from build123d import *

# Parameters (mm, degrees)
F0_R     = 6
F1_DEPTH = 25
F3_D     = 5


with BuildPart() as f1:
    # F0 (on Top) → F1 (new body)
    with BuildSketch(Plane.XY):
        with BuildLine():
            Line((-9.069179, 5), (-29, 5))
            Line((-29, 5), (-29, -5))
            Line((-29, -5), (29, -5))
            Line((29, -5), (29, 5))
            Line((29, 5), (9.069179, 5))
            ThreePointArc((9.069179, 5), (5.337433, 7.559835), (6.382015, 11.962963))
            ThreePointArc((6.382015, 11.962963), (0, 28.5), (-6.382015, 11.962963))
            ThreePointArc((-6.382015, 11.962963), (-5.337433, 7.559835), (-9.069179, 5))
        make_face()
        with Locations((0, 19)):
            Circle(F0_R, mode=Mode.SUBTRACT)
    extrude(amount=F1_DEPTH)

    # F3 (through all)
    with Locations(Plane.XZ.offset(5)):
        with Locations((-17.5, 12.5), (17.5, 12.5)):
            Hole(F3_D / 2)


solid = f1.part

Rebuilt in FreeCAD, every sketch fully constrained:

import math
import FreeCAD as App
import Part
import Sketcher

doc = App.newDocument("Part")
body = doc.addObject("PartDesign::Body", "Body")

# Sketch on XY plane
sketch1 = body.newObject("Sketcher::SketchObject", "Sketch")
sketch1.AttachmentSupport = (doc.getObject("XY_Plane"), [""])
sketch1.MapMode = "FlatFace"
sketch1.addGeometry(Part.LineSegment(App.Vector(-9.1, 5, 0), App.Vector(-29, 5, 0)), False)
sketch1.addGeometry(Part.LineSegment(App.Vector(-29, 5, 0), App.Vector(-29, -5, 0)), False)
sketch1.addGeometry(Part.LineSegment(App.Vector(-29, -5, 0), App.Vector(29, -5, 0)), False)
sketch1.addGeometry(Part.LineSegment(App.Vector(29, -5, 0), App.Vector(29, 5, 0)), False)
sketch1.addGeometry(Part.LineSegment(App.Vector(29, 5, 0), App.Vector(9.1, 5, 0)), False)
sketch1.addGeometry(Part.ArcOfCircle(Part.Circle(App.Vector(9.1, 9, 0), App.Vector(0, 0, 1), 4), math.radians(132), math.radians(270)), False)
sketch1.addGeometry(Part.ArcOfCircle(Part.Circle(App.Vector(0, 19, 0), App.Vector(0, 0, 1), 9.5), math.radians(-48), math.radians(228)), False)
sketch1.addGeometry(Part.ArcOfCircle(Part.Circle(App.Vector(-9.1, 9, 0), App.Vector(0, 0, 1), 4), math.radians(-90), math.radians(48)), False)
sketch1.addGeometry(Part.Circle(App.Vector(0, 19, 0), App.Vector(0, 0, 1), 6), False)
sketch1.addConstraint(Sketcher.Constraint("Coincident", 0, 2, 1, 1))
sketch1.addConstraint(Sketcher.Constraint("Coincident", 1, 2, 2, 1))
sketch1.addConstraint(Sketcher.Constraint("Coincident", 2, 2, 3, 1))
sketch1.addConstraint(Sketcher.Constraint("Coincident", 3, 2, 4, 1))
sketch1.addConstraint(Sketcher.Constraint("Tangent", 4, 2, 5, 2))
sketch1.addConstraint(Sketcher.Constraint("Tangent", 5, 1, 6, 1))
sketch1.addConstraint(Sketcher.Constraint("Tangent", 6, 2, 7, 2))
sketch1.addConstraint(Sketcher.Constraint("Tangent", 7, 1, 0, 1))
sketch1.addConstraint(Sketcher.Constraint("Horizontal", 0))
sketch1.addConstraint(Sketcher.Constraint("Vertical", 1))
sketch1.addConstraint(Sketcher.Constraint("Horizontal", 2))
sketch1.addConstraint(Sketcher.Constraint("Vertical", 3))
sketch1.addConstraint(Sketcher.Constraint("Horizontal", 4))
sketch1.addConstraint(Sketcher.Constraint("Coincident", 8, 3, 6, 3))
sketch1.addConstraint(Sketcher.Constraint("Equal", 5, 7))
sketch1.addConstraint(Sketcher.Constraint("Symmetric", 0, 2, 2, 2, -1, 1))
sketch1.addConstraint(Sketcher.Constraint("Symmetric", 5, 3, 7, 3, -2))
sketch1.addConstraint(Sketcher.Constraint("Diameter", 8, 12.0))
sketch1.addConstraint(Sketcher.Constraint("Radius", 5, 4.0))
sketch1.addConstraint(Sketcher.Constraint("Radius", 6, 9.5))
sketch1.addConstraint(Sketcher.Constraint("DistanceX", 2, 1, 2, 2, 58.0))
sketch1.addConstraint(Sketcher.Constraint("DistanceY", 1, 2, 1, 1, 10.0))
sketch1.addConstraint(Sketcher.Constraint("DistanceY", -1, 1, 6, 3, 19.0))
pad1 = body.newObject("PartDesign::Pad", "Pad")
pad1.Profile = sketch1
pad1.Length = 25

# Sketch on XZ plane
sketch2 = body.newObject("Sketcher::SketchObject", "Sketch001")
sketch2.AttachmentSupport = (doc.getObject("XZ_Plane"), [""])
sketch2.MapMode = "FlatFace"
sketch2.AttachmentOffset = App.Placement(App.Vector(0, 0, 5), App.Rotation())
sketch2.addGeometry(Part.Circle(App.Vector(-17.5, 12.5, 0), App.Vector(0, 0, 1), 2.5), False)
sketch2.addGeometry(Part.Circle(App.Vector(17.5, 12.5, 0), App.Vector(0, 0, 1), 2.5), False)
sketch2.addConstraint(Sketcher.Constraint("Equal", 0, 1))
sketch2.addConstraint(Sketcher.Constraint("Symmetric", 0, 3, 1, 3, -2))
sketch2.addConstraint(Sketcher.Constraint("Diameter", 0, 5.0))
sketch2.addConstraint(Sketcher.Constraint("DistanceX", 0, 3, 1, 3, 35.0))
sketch2.addConstraint(Sketcher.Constraint("DistanceY", -1, 1, 0, 3, 12.5))
doc.recompute()
hole = body.newObject("PartDesign::Hole", "Hole")
hole.Profile = sketch2
hole.ThreadType = "None"
hole.Diameter = 5
hole.DepthType = "ThroughAll"

doc.recompute()
